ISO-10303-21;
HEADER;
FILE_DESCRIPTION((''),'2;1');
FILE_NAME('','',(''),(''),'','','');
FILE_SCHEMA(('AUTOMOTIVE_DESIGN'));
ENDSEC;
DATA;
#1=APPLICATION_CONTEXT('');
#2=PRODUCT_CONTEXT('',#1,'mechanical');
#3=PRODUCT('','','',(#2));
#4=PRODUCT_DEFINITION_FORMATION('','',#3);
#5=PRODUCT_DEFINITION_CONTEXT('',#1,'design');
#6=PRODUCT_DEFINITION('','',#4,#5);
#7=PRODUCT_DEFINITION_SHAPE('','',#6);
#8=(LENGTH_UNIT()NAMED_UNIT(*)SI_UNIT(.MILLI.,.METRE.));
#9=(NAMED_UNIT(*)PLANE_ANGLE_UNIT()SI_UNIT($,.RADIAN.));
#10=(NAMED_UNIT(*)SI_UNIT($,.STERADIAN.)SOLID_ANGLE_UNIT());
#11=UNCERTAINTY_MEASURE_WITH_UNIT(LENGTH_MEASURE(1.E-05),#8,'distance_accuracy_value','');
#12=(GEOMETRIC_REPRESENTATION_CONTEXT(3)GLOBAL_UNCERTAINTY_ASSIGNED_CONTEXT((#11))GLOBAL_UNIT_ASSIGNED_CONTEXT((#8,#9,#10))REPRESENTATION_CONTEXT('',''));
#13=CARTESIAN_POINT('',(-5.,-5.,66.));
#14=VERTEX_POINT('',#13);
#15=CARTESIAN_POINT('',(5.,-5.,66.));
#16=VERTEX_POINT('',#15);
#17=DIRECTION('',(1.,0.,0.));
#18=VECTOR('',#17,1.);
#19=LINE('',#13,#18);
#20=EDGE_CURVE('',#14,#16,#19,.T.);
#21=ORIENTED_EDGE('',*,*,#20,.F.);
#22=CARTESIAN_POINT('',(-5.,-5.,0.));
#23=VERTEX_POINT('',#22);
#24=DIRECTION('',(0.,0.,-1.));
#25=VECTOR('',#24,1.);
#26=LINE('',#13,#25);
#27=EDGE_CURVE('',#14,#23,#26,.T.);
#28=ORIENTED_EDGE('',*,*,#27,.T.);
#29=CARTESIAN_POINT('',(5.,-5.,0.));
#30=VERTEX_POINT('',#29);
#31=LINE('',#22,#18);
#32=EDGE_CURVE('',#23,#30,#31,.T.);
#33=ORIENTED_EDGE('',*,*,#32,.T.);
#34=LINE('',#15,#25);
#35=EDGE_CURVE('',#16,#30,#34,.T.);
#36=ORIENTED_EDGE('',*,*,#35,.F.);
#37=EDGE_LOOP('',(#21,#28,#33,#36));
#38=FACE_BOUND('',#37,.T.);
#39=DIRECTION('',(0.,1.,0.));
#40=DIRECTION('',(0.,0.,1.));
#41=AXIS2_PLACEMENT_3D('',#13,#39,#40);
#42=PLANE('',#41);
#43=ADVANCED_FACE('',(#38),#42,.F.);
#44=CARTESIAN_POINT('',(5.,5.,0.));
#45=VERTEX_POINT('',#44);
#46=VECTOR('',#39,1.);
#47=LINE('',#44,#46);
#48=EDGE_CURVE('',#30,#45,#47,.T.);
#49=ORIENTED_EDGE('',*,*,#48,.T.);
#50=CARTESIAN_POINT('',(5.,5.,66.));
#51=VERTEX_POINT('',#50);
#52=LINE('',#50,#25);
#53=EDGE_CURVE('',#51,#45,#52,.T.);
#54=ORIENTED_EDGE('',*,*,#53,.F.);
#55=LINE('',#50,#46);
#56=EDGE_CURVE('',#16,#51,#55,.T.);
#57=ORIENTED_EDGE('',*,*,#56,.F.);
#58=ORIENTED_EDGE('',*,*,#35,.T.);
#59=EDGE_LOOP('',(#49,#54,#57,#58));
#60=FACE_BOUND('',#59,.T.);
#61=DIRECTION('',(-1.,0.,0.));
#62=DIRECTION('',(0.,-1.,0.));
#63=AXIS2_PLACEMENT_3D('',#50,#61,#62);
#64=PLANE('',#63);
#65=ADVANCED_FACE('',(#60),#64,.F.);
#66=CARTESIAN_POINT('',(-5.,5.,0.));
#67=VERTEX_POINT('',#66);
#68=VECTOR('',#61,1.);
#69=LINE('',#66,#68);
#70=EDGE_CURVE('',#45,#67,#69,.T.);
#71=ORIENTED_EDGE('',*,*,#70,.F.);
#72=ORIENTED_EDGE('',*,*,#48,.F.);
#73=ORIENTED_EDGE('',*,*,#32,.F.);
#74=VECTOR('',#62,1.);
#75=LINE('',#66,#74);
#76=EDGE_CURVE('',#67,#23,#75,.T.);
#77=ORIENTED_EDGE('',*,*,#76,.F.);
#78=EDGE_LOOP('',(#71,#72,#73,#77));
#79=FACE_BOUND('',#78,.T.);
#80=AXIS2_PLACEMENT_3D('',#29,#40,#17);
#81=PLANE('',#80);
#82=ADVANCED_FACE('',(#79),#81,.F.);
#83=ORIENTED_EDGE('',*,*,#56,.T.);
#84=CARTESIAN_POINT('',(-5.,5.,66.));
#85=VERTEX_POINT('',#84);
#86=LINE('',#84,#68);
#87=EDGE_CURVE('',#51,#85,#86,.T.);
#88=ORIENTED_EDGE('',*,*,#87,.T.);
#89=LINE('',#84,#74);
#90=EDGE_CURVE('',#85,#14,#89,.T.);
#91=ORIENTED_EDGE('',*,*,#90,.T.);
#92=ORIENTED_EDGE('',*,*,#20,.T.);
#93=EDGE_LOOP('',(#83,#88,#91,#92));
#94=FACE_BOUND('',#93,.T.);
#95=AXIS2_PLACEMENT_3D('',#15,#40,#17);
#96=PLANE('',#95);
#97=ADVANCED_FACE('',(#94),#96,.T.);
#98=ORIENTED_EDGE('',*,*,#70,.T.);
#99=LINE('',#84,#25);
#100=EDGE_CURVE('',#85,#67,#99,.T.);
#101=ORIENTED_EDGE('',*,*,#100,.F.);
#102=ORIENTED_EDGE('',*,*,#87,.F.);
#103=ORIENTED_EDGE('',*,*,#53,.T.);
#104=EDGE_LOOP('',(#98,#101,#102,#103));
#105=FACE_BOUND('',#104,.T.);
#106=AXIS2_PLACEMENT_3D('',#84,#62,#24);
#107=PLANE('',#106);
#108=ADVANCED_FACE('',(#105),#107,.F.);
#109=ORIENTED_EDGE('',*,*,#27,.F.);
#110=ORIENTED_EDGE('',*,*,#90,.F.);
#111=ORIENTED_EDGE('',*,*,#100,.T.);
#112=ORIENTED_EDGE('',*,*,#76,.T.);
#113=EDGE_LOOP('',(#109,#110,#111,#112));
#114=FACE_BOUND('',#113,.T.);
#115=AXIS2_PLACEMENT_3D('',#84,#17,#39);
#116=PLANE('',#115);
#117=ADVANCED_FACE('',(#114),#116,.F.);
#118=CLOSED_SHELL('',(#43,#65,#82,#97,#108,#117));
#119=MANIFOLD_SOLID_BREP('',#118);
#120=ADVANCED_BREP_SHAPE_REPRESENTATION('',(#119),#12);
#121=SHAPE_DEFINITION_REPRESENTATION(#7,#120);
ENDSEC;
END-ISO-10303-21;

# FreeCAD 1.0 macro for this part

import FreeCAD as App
import Part
import Sketcher
from FreeCAD import Vector

doc = App.newDocument("Part")
body = doc.addObject("PartDesign::Body", "Body")

# Sketch on XY plane
sketch1 = body.newObject("Sketcher::SketchObject", "Sketch")
sketch1.AttachmentSupport = (doc.getObject("XY_Plane"), [""])
sketch1.MapMode = "FlatFace"
sketch1.addGeometry([
    Part.LineSegment(Vector(-5, 5, 0), Vector(-5, -5, 0)),
    Part.LineSegment(Vector(-5, -5, 0), Vector(5, -5, 0)),
    Part.LineSegment(Vector(5, -5, 0), Vector(5, 5, 0)),
    Part.LineSegment(Vector(5, 5, 0), Vector(-5, 5, 0)),
], False)
sketch1.addConstraint([
    Sketcher.Constraint("Coincident", 0, 2, 1, 1),
    Sketcher.Constraint("Coincident", 1, 2, 2, 1),
    Sketcher.Constraint("Coincident", 2, 2, 3, 1),
    Sketcher.Constraint("Coincident", 3, 2, 0, 1),
    Sketcher.Constraint("Vertical", 0),
    Sketcher.Constraint("Horizontal", 1),
    Sketcher.Constraint("Vertical", 2),
    Sketcher.Constraint("Horizontal", 3),
    Sketcher.Constraint("Symmetric", 0, 2, 2, 2, -1, 1),
    Sketcher.Constraint("Equal", 3, 0),
    Sketcher.Constraint("DistanceX", 1, 1, 1, 2, 10.0),
])
pad1 = body.newObject("PartDesign::Pad", "Pad")
pad1.Profile = sketch1
pad1.Length = 66

doc.recompute()
